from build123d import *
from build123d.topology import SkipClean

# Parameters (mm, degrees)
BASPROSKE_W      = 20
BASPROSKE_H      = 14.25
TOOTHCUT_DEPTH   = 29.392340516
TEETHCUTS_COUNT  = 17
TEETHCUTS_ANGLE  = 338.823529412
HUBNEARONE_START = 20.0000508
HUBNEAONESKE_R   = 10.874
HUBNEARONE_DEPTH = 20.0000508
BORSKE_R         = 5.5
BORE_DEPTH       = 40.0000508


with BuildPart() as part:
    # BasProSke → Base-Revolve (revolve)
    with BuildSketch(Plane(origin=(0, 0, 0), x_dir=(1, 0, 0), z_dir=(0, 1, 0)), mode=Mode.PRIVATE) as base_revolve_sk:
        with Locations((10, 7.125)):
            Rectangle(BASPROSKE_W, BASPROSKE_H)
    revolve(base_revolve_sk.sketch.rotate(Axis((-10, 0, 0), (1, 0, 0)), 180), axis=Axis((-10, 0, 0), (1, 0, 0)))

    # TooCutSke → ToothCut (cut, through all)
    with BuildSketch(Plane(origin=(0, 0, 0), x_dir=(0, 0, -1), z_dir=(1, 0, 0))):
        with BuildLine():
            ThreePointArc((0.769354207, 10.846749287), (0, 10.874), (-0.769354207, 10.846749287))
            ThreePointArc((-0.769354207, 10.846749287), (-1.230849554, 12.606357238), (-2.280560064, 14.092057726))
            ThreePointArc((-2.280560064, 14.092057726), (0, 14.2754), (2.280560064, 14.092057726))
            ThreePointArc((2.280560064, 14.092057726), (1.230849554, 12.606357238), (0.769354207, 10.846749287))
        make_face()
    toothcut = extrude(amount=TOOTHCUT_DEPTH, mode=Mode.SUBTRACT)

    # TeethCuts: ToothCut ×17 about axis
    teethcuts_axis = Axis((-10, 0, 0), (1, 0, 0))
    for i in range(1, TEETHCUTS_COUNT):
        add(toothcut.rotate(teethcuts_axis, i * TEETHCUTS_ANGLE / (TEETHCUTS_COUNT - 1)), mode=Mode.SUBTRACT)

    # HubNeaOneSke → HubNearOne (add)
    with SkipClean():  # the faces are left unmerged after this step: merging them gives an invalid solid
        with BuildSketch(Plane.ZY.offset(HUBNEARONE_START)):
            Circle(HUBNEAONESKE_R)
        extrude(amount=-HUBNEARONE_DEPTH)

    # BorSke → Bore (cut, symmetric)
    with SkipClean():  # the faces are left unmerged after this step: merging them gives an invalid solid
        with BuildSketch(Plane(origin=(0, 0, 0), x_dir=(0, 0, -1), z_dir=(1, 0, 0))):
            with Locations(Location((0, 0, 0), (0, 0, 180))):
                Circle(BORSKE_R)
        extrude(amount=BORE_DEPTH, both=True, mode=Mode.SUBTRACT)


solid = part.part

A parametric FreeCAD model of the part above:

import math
import FreeCAD as App
import Part
import Sketcher

V = App.Vector

doc = App.newDocument("Part")
body = doc.addObject("PartDesign::Body", "Body")

sketch1 = body.newObject("Sketcher::SketchObject", "Sketch")
sketch1.AttachmentSupport = (doc.getObject("XZ_Plane"), [""])
sketch1.MapMode = "FlatFace"
sketch1.addGeometry(Part.LineSegment(V(0, -14, 0), V(0, 0, 0)), False)
sketch1.addGeometry(Part.LineSegment(V(0, 0, 0), V(20, 0, 0)), False)
sketch1.addGeometry(Part.LineSegment(V(20, 0, 0), V(20, -14, 0)), False)
sketch1.addGeometry(Part.LineSegment(V(20, -14, 0), V(0, -14, 0)), False)
sketch1.addConstraint(Sketcher.Constraint("Coincident", 0, 2, 1, 1))
sketch1.addConstraint(Sketcher.Constraint("Coincident", 1, 2, 2, 1))
sketch1.addConstraint(Sketcher.Constraint("Coincident", 2, 2, 3, 1))
sketch1.addConstraint(Sketcher.Constraint("Coincident", 3, 2, 0, 1))
sketch1.addConstraint(Sketcher.Constraint("Vertical", 0))
sketch1.addConstraint(Sketcher.Constraint("Horizontal", 1))
sketch1.addConstraint(Sketcher.Constraint("Vertical", 2))
sketch1.addConstraint(Sketcher.Constraint("Horizontal", 3))
sketch1.addConstraint(Sketcher.Constraint("Coincident", 0, 2, -1, 1))
sketch1.addConstraint(Sketcher.Constraint("DistanceX", 1, 1, 1, 2, 20.0))
sketch1.addConstraint(Sketcher.Constraint("DistanceY", 0, 1, 0, 2, 14.25))
revolution = body.newObject("PartDesign::Revolution", "Revolution")
revolution.Profile = sketch1
revolution.ReferenceAxis = (sketch1, ["H_Axis"])
revolution.Angle = 360

sketch2 = body.newObject("Sketcher::SketchObject", "Sketch001")
sketch2.AttachmentSupport = (doc.getObject("YZ_Plane"), [""])
sketch2.MapMode = "FlatFace"
sketch2.addGeometry(Part.ArcOfCircle(Part.Circle(V(0, 0, 0), V(0, 0, 1), 10.9), math.radians(-4.06), math.radians(4.06)), False)
sketch2.addGeometry(Part.ArcOfCircle(Part.Circle(V(10.5, -5.9, 0), V(0, 0, 1), 5.1), math.radians(44), math.radians(86)), False)
sketch2.addGeometry(Part.ArcOfCircle(Part.Circle(V(0, 0, 0), V(0, 0, 1), 14.3), math.radians(-9.19), math.radians(9.19)), False)
sketch2.addGeometry(Part.ArcOfCircle(Part.Circle(V(10.5, 5.9, 0), V(0, 0, 1), 5.1), math.radians(-86), math.radians(-44)), False)
sketch2.addConstraint(Sketcher.Constraint("Coincident", 0, 1, 1, 2))
sketch2.addConstraint(Sketcher.Constraint("Coincident", 1, 1, 2, 1))
sketch2.addConstraint(Sketcher.Constraint("Coincident", 2, 2, 3, 2))
sketch2.addConstraint(Sketcher.Constraint("Coincident", 3, 1, 0, 2))
sketch2.addConstraint(Sketcher.Constraint("Coincident", 0, 3, -1, 1))
sketch2.addConstraint(Sketcher.Constraint("Coincident", 2, 3, -1, 1))
sketch2.addConstraint(Sketcher.Constraint("Equal", 1, 3))
sketch2.addConstraint(Sketcher.Constraint("Symmetric", 1, 3, 3, 3, -1))
sketch2.addConstraint(Sketcher.Constraint("Radius", 1, 5.1))
sketch2.addConstraint(Sketcher.Constraint("Radius", 0, 10.874))
sketch2.addConstraint(Sketcher.Constraint("Radius", 2, 14.2754))
sketch2.addConstraint(Sketcher.Constraint("DistanceX", -1, 1, 1, 3, 10.453469))
sketch2.addConstraint(Sketcher.Constraint("DistanceX", -1, 1, 0, 1, 10.846749))
pocket1 = body.newObject("PartDesign::Pocket", "Pocket")
pocket1.Profile = sketch2
pocket1.Type = "ThroughAll"
pocket1.Reversed = True
doc.recompute()

polarpattern = body.newObject("PartDesign::PolarPattern", "PolarPattern")
polarpattern.Originals = [pocket1]
polarpattern.Axis = (doc.getObject("X_Axis"), [""])
polarpattern.Angle = 360
polarpattern.Occurrences = 17
body.Tip = polarpattern

sketch3 = body.newObject("Sketcher::SketchObject", "Sketch002")
sketch3.AttachmentSupport = (doc.getObject("YZ_Plane"), [""])
sketch3.MapMode = "FlatFace"
sketch3.AttachmentOffset = App.Placement(V(0, 0, -20.000051), App.Rotation())
sketch3.addGeometry(Part.Circle(V(0, 0, 0), V(0, 0, 1), 11), False)
sketch3.addConstraint(Sketcher.Constraint("Coincident", 0, 3, -1, 1))
sketch3.addConstraint(Sketcher.Constraint("Diameter", 0, 21.748))
pad1 = body.newObject("PartDesign::Pad", "Pad")
pad1.Profile = sketch3
pad1.Length = 20.000051

sketch4 = body.newObject("Sketcher::SketchObject", "Sketch003")
sketch4.AttachmentSupport = (doc.getObject("YZ_Plane"), [""])
sketch4.MapMode = "FlatFace"
sketch4.addGeometry(Part.Circle(V(0, 0, 0), V(0, 0, 1), 6), False)
sketch4.addConstraint(Sketcher.Constraint("Coincident", 0, 3, -1, 1))
sketch4.addConstraint(Sketcher.Constraint("Diameter", 0, 11.0))
pocket2 = body.newObject("PartDesign::Pocket", "Pocket001")
pocket2.Profile = sketch4
pocket2.Length = 80.000102
pocket2.Midplane = True

doc.recompute()
